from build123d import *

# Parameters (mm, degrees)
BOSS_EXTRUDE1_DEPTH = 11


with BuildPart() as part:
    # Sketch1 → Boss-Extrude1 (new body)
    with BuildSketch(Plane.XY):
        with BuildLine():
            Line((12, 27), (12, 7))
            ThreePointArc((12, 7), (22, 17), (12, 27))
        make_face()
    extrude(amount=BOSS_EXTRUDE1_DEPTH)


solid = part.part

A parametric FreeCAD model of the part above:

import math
import FreeCAD as App
import Part
import Sketcher

doc = App.newDocument("Part")
body = doc.addObject("PartDesign::Body", "Body")

# Sketch on XY plane
sketch1 = doc.addObject("Sketcher::SketchObject", "Sketch")
body.addObject(sketch1)
sketch1.AttachmentSupport = (doc.XY_Plane, [""])
sketch1.MapMode = "FlatFace"
sketch1.addGeometry([
    Part.LineSegment(App.Vector(12, 27, 0), App.Vector(12, 7, 0)),
    Part.ArcOfCircle(Part.Circle(App.Vector(12, 17, 0), App.Vector(0, 0, 1), 10), math.radians(-90), math.radians(90)),
], False)
sketch1.addConstraint([
    Sketcher.Constraint("Coincident", 0, 1, 1, 2),
    Sketcher.Constraint("Coincident", 1, 1, 0, 2),
    Sketcher.Constraint("Vertical", 0),
    Sketcher.Constraint("Vertical", 1, 3, 0, 1),
    Sketcher.Constraint("Radius", 1, 10.0),
    Sketcher.Constraint("DistanceX", -1, 1, 1, 3, 12.0),
    Sketcher.Constraint("DistanceY", -1, 1, 1, 3, 17.0),
])
pad1 = doc.addObject("PartDesign::Pad", "Pad")
body.addObject(pad1)
pad1.Profile = sketch1
pad1.Length = 11

doc.recompute()
